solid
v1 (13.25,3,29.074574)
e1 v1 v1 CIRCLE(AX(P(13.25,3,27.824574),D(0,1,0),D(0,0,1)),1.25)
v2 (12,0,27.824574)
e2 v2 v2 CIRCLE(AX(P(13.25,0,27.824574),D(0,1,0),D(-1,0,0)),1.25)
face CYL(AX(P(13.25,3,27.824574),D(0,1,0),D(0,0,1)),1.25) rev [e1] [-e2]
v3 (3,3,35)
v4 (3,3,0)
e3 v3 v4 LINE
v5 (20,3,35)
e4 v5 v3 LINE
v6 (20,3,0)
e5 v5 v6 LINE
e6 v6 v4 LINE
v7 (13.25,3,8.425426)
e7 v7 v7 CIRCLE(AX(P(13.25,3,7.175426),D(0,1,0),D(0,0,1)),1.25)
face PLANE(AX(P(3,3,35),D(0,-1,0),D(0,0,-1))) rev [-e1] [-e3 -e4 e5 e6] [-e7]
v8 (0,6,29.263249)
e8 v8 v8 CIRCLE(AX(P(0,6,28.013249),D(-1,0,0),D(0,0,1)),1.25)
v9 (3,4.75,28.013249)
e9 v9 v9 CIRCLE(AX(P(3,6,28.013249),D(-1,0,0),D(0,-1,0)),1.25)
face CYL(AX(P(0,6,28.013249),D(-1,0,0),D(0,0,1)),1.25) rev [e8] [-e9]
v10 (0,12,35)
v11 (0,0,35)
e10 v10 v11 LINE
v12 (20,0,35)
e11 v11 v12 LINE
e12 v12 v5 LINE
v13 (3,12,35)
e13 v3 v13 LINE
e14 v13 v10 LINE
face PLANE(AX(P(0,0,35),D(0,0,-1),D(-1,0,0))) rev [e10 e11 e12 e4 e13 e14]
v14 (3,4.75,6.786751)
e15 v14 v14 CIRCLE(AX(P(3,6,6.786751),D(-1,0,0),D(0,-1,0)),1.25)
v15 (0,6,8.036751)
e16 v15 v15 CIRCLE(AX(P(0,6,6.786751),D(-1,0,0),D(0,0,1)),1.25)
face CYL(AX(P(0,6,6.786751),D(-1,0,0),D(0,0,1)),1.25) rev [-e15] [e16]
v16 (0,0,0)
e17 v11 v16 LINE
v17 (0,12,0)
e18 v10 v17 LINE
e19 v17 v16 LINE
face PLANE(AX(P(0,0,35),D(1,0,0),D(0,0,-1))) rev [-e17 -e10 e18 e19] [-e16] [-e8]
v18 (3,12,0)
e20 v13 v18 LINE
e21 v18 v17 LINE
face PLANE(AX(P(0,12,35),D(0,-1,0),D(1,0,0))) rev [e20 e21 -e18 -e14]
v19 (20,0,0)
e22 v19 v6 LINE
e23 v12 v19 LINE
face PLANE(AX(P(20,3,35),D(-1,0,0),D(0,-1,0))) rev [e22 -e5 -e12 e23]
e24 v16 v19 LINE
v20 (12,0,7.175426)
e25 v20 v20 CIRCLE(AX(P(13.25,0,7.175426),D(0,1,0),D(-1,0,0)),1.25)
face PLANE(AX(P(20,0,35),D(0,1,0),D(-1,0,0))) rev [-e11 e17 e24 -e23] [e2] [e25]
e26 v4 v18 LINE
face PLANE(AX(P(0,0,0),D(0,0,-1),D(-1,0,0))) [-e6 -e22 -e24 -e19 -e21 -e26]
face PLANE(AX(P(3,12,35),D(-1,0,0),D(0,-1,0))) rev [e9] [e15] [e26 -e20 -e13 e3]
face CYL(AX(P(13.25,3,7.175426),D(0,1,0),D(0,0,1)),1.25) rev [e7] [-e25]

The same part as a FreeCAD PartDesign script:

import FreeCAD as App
import Part
import Sketcher

V = App.Vector
Q = App.Units.Quantity

doc = App.newDocument("Part")
body = doc.addObject("PartDesign::Body", "Body")

sketch1 = doc.addObject("Sketcher::SketchObject", "Sketch")
body.addObject(sketch1)
sketch1.AttachmentSupport = (doc.XY_Plane, [""])
sketch1.MapMode = "FlatFace"
sketch1.addGeometry([
    Part.LineSegment(V(0, 12, 0), V(0, 0, 0)),
    Part.LineSegment(V(0, 0, 0), V(20, 0, 0)),
    Part.LineSegment(V(20, 0, 0), V(20, 3, 0)),
    Part.LineSegment(V(20, 3, 0), V(3, 3, 0)),
    Part.LineSegment(V(3, 3, 0), V(3, 12, 0)),
    Part.LineSegment(V(3, 12, 0), V(0, 12, 0)),
], False)
sketch1.addConstraint([
    Sketcher.Constraint("Coincident", 0, 2, 1, 1),
    Sketcher.Constraint("Coincident", 1, 2, 2, 1),
    Sketcher.Constraint("Coincident", 2, 2, 3, 1),
    Sketcher.Constraint("Coincident", 3, 2, 4, 1),
    Sketcher.Constraint("Coincident", 4, 2, 5, 1),
    Sketcher.Constraint("Coincident", 5, 2, 0, 1),
    Sketcher.Constraint("Vertical", 0),
    Sketcher.Constraint("Horizontal", 1),
    Sketcher.Constraint("Vertical", 2),
    Sketcher.Constraint("Horizontal", 3),
    Sketcher.Constraint("Vertical", 4),
    Sketcher.Constraint("Horizontal", 5),
    Sketcher.Constraint("Coincident", 0, 2, -1, 1),
    Sketcher.Constraint("Equal", 5, 2),
    Sketcher.Constraint("DistanceX", 1, 1, 1, 2, Q("20 mm")),
    Sketcher.Constraint("DistanceX", 3, 2, 3, 1, Q("17 mm")),
    Sketcher.Constraint("DistanceY", 0, 2, 0, 1, Q("12 mm")),
])
pad1 = doc.addObject("PartDesign::Pad", "Pad")
body.addObject(pad1)
pad1.Profile = sketch1
pad1.Length = 35

sketch2 = doc.addObject("Sketcher::SketchObject", "Sketch001")
body.addObject(sketch2)
sketch2.AttachmentSupport = (doc.XZ_Plane, [""])
sketch2.MapMode = "FlatFace"
sketch2.AttachmentOffset = App.Placement(V(0, 0, -3), App.Rotation())
sketch2.addGeometry([
    Part.Circle(V(13.2, 27.8, 0), V(0, 0, 1), 1.2),
    Part.Circle(V(13.2, 7.2, 0), V(0, 0, 1), 1.2),
], False)
sketch2.addConstraint([
    Sketcher.Constraint("Equal", 0, 1),
    Sketcher.Constraint("Vertical", 0, 3, 1, 3),
    Sketcher.Constraint("Diameter", 0, Q("2.5 mm")),
    Sketcher.Constraint("DistanceX", -1, 1, 0, 3, Q("13.25 mm")),
    Sketcher.Constraint("DistanceY", -1, 1, 0, 3, Q("27.824574 mm")),
    Sketcher.Constraint("DistanceY", -1, 1, 1, 3, Q("7.175426 mm")),
])
doc.recompute()
hole = doc.addObject("PartDesign::Hole", "Hole")
body.addObject(hole)
hole.Profile = sketch2
hole.ThreadType = "None"
hole.Diameter = 2.5
hole.DepthType = "Dimension"
hole.Depth = 4.9
hole.DrillPoint = "Angled"
hole.DrillPointAngle = 118
hole.Reversed = True

sketch3 = doc.addObject("Sketcher::SketchObject", "Sketch002")
body.addObject(sketch3)
sketch3.AttachmentSupport = (doc.YZ_Plane, [""])
sketch3.MapMode = "FlatFace"
sketch3.addGeometry([
    Part.Circle(V(6, 6.8, 0), V(0, 0, 1), 1.2),
    Part.Circle(V(6, 28, 0), V(0, 0, 1), 1.2),
], False)
sketch3.addConstraint([
    Sketcher.Constraint("Equal", 0, 1),
    Sketcher.Constraint("Vertical", 0, 3, 1, 3),
    Sketcher.Constraint("Diameter", 0, Q("2.5 mm")),
    Sketcher.Constraint("DistanceX", -1, 1, 0, 3, Q("6 mm")),
    Sketcher.Constraint("DistanceY", -1, 1, 0, 3, Q("6.786751 mm")),
    Sketcher.Constraint("DistanceY", -1, 1, 1, 3, Q("28.013249 mm")),
])
doc.recompute()
hole2 = doc.addObject("PartDesign::Hole", "Hole001")
body.addObject(hole2)
hole2.Profile = sketch3
hole2.ThreadType = "None"
hole2.Diameter = 2.5
hole2.DepthType = "Dimension"
hole2.Depth = 4.9
hole2.DrillPoint = "Angled"
hole2.DrillPointAngle = 118
hole2.Reversed = True

doc.recompute()
